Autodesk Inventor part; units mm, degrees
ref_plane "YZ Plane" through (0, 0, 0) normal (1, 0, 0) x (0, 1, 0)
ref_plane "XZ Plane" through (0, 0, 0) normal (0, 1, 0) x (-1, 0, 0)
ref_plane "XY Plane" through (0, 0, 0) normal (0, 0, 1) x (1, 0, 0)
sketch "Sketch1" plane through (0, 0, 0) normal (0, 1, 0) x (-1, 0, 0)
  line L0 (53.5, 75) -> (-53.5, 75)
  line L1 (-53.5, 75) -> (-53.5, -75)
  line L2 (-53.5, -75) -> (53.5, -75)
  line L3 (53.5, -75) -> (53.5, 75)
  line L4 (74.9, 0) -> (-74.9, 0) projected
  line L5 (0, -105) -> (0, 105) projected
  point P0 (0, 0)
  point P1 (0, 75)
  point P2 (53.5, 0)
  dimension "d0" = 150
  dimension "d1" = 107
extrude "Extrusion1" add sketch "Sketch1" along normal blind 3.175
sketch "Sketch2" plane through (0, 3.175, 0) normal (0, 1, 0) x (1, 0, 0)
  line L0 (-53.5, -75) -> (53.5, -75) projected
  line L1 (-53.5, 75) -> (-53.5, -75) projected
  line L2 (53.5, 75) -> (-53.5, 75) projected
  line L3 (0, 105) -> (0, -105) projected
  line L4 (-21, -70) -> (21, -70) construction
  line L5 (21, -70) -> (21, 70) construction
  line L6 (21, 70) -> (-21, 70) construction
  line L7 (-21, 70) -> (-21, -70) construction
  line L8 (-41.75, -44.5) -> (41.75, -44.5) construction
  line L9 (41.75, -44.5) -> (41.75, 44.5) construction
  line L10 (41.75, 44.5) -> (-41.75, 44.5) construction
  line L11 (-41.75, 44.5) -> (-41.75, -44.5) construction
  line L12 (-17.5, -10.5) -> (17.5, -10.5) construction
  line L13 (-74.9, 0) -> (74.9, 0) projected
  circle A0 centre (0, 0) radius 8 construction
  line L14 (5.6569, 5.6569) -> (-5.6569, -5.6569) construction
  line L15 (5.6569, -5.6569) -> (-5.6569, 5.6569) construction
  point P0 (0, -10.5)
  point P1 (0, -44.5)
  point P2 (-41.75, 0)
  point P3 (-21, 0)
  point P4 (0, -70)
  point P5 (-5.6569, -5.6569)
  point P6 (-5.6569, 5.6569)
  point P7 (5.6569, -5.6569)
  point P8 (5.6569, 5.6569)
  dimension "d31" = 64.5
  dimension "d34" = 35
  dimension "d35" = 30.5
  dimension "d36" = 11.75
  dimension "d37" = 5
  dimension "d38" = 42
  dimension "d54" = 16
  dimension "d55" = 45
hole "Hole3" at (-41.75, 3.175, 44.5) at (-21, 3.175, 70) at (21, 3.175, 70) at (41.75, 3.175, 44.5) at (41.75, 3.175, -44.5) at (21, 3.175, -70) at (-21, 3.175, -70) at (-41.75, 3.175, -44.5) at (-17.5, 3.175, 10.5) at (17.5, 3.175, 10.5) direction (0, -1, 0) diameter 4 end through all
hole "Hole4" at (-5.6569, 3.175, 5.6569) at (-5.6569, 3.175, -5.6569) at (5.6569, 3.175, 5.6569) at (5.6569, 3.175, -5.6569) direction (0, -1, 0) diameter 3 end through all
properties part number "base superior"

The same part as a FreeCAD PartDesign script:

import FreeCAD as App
import Part
import Sketcher
from FreeCAD import Vector
Q = App.Units.Quantity


def add_polygon(sketch, points):
    """Adds a closed chain of lines whose ends are joined by coincident constraints."""
    first, n = sketch.GeometryCount, len(points)
    for a, b in zip(points, points[1:] + points[:1]):
        sketch.addGeometry(Part.LineSegment(App.Vector(*a, 0), App.Vector(*b, 0)), False)
    for i in range(n):
        sketch.addConstraint(Sketcher.Constraint("Coincident", first + i, 2, first + (i + 1) % n, 1))

doc = App.newDocument("Part")
body = doc.addObject("PartDesign::Body", "Body")

# Sketch on XZ plane
sketch1 = body.newObject("Sketcher::SketchObject", "Sketch")
sketch1.AttachmentSupport = (doc.getObject("XZ_Plane"), [""])
sketch1.MapMode = "FlatFace"
add_polygon(sketch1, [(-54, 75), (54, 75), (54, -75), (-54, -75)])  # lines 0-3
sketch1.addConstraint([
    Sketcher.Constraint("Horizontal", 0),
    Sketcher.Constraint("Vertical", 1),
    Sketcher.Constraint("Horizontal", 2),
    Sketcher.Constraint("Vertical", 3),
    Sketcher.Constraint("Symmetric", 0, 2, 2, 2, -1, 1),
    Sketcher.Constraint("DistanceX", 0, 1, 0, 2, Q("107 mm")),
    Sketcher.Constraint("DistanceY", 1, 2, 1, 1, Q("150 mm")),
])
pad1 = body.newObject("PartDesign::Pad", "Pad")
pad1.Profile = sketch1
pad1.Length = 3.175
pad1.Reversed = True

# Sketch on XZ plane
sketch2 = body.newObject("Sketcher::SketchObject", "Sketch001")
sketch2.AttachmentSupport = (doc.getObject("XZ_Plane"), [""])
sketch2.MapMode = "FlatFace"
sketch2.AttachmentOffset = App.Placement(Vector(0, 0, -3.175), App.Rotation())
sketch2.addGeometry([
    Part.Circle(Vector(-41.8, 44.5, 0), Vector(0, 0, 1), 2),  # 0
    Part.Circle(Vector(-21, 70, 0), Vector(0, 0, 1), 2),  # 1
    Part.Circle(Vector(21, 70, 0), Vector(0, 0, 1), 2),  # 2
    Part.Circle(Vector(41.8, 44.5, 0), Vector(0, 0, 1), 2),  # 3
    Part.Circle(Vector(41.8, -44.5, 0), Vector(0, 0, 1), 2),  # 4
    Part.Circle(Vector(21, -70, 0), Vector(0, 0, 1), 2),  # 5
    Part.Circle(Vector(-21, -70, 0), Vector(0, 0, 1), 2),  # 6
    Part.Circle(Vector(-41.8, -44.5, 0), Vector(0, 0, 1), 2),  # 7
    Part.Circle(Vector(-17.5, 10.5, 0), Vector(0, 0, 1), 2),  # 8
    Part.Circle(Vector(17.5, 10.5, 0), Vector(0, 0, 1), 2),  # 9
], False)
sketch2.addConstraint([
    Sketcher.Constraint("Equal", 0, 1),
    Sketcher.Constraint("Equal", 1, 2),
    Sketcher.Constraint("Equal", 2, 3),
    Sketcher.Constraint("Equal", 3, 4),
    Sketcher.Constraint("Equal", 4, 5),
    Sketcher.Constraint("Equal", 5, 6),
    Sketcher.Constraint("Equal", 6, 7),
    Sketcher.Constraint("Equal", 7, 8),
    Sketcher.Constraint("Equal", 8, 9),
    Sketcher.Constraint("Symmetric", 0, 3, 4, 3, -1, 1),
    Sketcher.Constraint("Symmetric", 1, 3, 5, 3, -1, 1),
    Sketcher.Constraint("Symmetric", 2, 3, 6, 3, -1, 1),
    Sketcher.Constraint("Symmetric", 3, 3, 7, 3, -1, 1),
    Sketcher.Constraint("Symmetric", 1, 3, 2, 3, -2),
    Sketcher.Constraint("Symmetric", 0, 3, 3, 3, -2),
    Sketcher.Constraint("Symmetric", 8, 3, 9, 3, -2),
    Sketcher.Constraint("Diameter", 0, Q("4 mm")),
    Sketcher.Constraint("DistanceX", 1, 3, -1, 1, Q("21 mm")),
    Sketcher.Constraint("DistanceY", -1, 1, 1, 3, Q("70 mm")),
    Sketcher.Constraint("DistanceY", 4, 3, 3, 3, Q("89 mm")),
    Sketcher.Constraint("DistanceY", 8, 3, 0, 3, Q("34 mm")),
    Sketcher.Constraint("DistanceX", 8, 3, 9, 3, Q("35 mm")),
    Sketcher.Constraint("DistanceX", 0, 3, 3, 3, Q("83.5 mm")),
])
doc.recompute()
hole = body.newObject("PartDesign::Hole", "Hole")
hole.Profile = sketch2
hole.ThreadType = "None"
hole.Diameter = 4
hole.DepthType = "ThroughAll"
hole.Reversed = True

# Sketch on XZ plane
sketch3 = body.newObject("Sketcher::SketchObject", "Sketch002")
sketch3.AttachmentSupport = (doc.getObject("XZ_Plane"), [""])
sketch3.MapMode = "FlatFace"
sketch3.AttachmentOffset = App.Placement(Vector(0, 0, -3.175), App.Rotation())
sketch3.addGeometry([
    Part.Circle(Vector(-5.7, 5.7, 0), Vector(0, 0, 1), 1.5),
    Part.Circle(Vector(-5.7, -5.7, 0), Vector(0, 0, 1), 1.5),
    Part.Circle(Vector(5.7, 5.7, 0), Vector(0, 0, 1), 1.5),
    Part.Circle(Vector(5.7, -5.7, 0), Vector(0, 0, 1), 1.5),
], False)
sketch3.addConstraint([
    Sketcher.Constraint("Equal", 0, 1),
    Sketcher.Constraint("Equal", 1, 2),
    Sketcher.Constraint("Equal", 2, 3),
    Sketcher.Constraint("Symmetric", 1, 3, 2, 3, -1, 1),
    Sketcher.Constraint("Symmetric", 0, 3, 3, 3, -1, 1),
    Sketcher.Constraint("Symmetric", 0, 3, 2, 3, -2),
    Sketcher.Constraint("Diameter", 0, Q("3 mm")),
    Sketcher.Constraint("DistanceX", 0, 3, -1, 1, Q("5.657 mm")),
    Sketcher.Constraint("DistanceY", -1, 1, 0, 3, Q("5.657 mm")),
])
doc.recompute()
hole2 = body.newObject("PartDesign::Hole", "Hole001")
hole2.Profile = sketch3
hole2.ThreadType = "None"
hole2.Diameter = 3
hole2.DepthType = "ThroughAll"
hole2.Reversed = True

doc.recompute()
